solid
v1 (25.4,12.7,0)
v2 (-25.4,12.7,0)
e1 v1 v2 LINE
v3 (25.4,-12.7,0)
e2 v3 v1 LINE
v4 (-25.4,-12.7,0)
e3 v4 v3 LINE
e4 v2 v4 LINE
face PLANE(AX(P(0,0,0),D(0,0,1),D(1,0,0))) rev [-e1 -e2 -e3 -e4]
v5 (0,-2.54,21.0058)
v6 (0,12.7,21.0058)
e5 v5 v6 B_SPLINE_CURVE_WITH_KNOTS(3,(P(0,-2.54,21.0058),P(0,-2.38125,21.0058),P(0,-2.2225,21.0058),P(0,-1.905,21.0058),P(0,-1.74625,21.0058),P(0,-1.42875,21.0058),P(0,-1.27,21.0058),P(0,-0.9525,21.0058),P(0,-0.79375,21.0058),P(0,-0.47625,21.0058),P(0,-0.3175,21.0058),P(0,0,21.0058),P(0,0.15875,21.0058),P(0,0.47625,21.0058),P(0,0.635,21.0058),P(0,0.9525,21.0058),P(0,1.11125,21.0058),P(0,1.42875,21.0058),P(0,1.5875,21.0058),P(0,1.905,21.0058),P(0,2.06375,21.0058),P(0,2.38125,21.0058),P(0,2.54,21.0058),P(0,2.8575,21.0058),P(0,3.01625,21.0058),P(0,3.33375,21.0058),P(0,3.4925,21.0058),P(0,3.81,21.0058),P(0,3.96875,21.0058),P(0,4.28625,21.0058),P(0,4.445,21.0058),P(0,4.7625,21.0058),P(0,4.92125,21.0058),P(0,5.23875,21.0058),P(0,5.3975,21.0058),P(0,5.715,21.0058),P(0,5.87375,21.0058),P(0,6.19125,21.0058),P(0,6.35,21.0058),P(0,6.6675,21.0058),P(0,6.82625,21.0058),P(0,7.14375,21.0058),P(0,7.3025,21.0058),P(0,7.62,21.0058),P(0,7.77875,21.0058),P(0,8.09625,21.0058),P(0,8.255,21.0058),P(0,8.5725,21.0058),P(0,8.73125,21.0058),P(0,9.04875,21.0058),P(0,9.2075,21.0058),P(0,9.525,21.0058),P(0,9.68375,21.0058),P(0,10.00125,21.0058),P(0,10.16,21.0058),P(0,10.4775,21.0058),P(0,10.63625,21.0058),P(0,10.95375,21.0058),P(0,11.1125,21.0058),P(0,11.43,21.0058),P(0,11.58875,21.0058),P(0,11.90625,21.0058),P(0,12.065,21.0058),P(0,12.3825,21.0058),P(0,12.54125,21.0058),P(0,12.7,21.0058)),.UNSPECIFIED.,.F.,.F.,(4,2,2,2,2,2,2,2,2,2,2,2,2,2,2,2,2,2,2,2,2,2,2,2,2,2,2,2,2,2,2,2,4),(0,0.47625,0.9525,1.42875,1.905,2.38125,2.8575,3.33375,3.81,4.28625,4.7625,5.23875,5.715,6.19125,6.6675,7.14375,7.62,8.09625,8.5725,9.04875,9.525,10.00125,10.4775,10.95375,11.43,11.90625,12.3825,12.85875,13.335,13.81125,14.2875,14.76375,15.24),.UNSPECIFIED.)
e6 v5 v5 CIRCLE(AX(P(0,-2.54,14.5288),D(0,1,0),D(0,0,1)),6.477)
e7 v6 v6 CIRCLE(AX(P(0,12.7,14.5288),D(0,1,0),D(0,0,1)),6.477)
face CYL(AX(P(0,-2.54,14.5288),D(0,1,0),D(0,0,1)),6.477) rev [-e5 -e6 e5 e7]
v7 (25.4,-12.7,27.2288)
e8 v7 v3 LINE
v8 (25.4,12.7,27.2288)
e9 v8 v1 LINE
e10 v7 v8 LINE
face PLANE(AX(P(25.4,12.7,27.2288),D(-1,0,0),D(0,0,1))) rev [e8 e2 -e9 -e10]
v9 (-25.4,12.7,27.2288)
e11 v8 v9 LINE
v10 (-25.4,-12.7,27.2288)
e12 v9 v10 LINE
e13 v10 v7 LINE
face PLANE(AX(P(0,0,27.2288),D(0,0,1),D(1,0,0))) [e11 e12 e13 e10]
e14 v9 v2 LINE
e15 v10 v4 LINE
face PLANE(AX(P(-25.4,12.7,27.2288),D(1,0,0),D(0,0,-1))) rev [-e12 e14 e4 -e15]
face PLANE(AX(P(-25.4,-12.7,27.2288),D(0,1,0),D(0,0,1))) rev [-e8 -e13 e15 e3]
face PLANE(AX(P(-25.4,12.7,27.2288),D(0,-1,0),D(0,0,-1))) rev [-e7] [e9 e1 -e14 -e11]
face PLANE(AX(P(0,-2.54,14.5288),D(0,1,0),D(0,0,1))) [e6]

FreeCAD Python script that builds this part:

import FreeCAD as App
import Part
import Sketcher
Q = App.Units.Quantity

doc = App.newDocument("Part")
params = doc.addObject("Spreadsheet::Sheet", "Params")
for row, (alias, value) in enumerate([
    ("sketch1_width", "2 in"),
    ("sketch1_height", "1 in"),
    ("pad1_length", "1.072 in"),
    ("sketch2_diameter", "0.51 in"),
    ("pocket1_length", "0.6 in"),
], start=1):
    params.set(f"A{row}", alias)
    params.set(f"B{row}", "=" + value)
    params.setAlias(f"B{row}", alias)

body = doc.addObject("PartDesign::Body", "Body")

sketch1 = body.newObject("Sketcher::SketchObject", "Sketch")
sketch1.AttachmentSupport = (doc.getObject("XY_Plane"), [""])
sketch1.MapMode = "FlatFace"
sketch1.addGeometry(Part.LineSegment(App.Vector(-25.4, 12.7, 0), App.Vector(-25.4, -12.7, 0)), False)
sketch1.addGeometry(Part.LineSegment(App.Vector(-25.4, -12.7, 0), App.Vector(25.4, -12.7, 0)), False)
sketch1.addGeometry(Part.LineSegment(App.Vector(25.4, -12.7, 0), App.Vector(25.4, 12.7, 0)), False)
sketch1.addGeometry(Part.LineSegment(App.Vector(25.4, 12.7, 0), App.Vector(-25.4, 12.7, 0)), False)
sketch1.addConstraint(Sketcher.Constraint("Coincident", 0, 2, 1, 1))
sketch1.addConstraint(Sketcher.Constraint("Coincident", 1, 2, 2, 1))
sketch1.addConstraint(Sketcher.Constraint("Coincident", 2, 2, 3, 1))
sketch1.addConstraint(Sketcher.Constraint("Coincident", 3, 2, 0, 1))
sketch1.addConstraint(Sketcher.Constraint("Vertical", 0))
sketch1.addConstraint(Sketcher.Constraint("Horizontal", 1))
sketch1.addConstraint(Sketcher.Constraint("Vertical", 2))
sketch1.addConstraint(Sketcher.Constraint("Horizontal", 3))
sketch1.addConstraint(Sketcher.Constraint("Symmetric", 0, 2, 2, 2, -1, 1))
sketch1.addConstraint(Sketcher.Constraint("DistanceX", 1, 1, 1, 2, Q("2 in")))
sketch1.addConstraint(Sketcher.Constraint("DistanceY", 0, 2, 0, 1, Q("1 in")))
sketch1.setExpression("Constraints[9]", "Params.sketch1_width")
sketch1.setExpression("Constraints[10]", "Params.sketch1_height")
pad1 = body.newObject("PartDesign::Pad", "Pad")
pad1.Profile = sketch1
pad1.setExpression("Length", "Params.pad1_length")

sketch2 = body.newObject("Sketcher::SketchObject", "Sketch001")
sketch2.AttachmentSupport = (doc.getObject("XZ_Plane"), [""])
sketch2.MapMode = "FlatFace"
sketch2.AttachmentOffset = App.Placement(App.Vector(0, 0, -0.5 * 25.4), App.Rotation())
sketch2.addGeometry(Part.Circle(App.Vector(0, 14.5288, 0), App.Vector(0, 0, 1), 6.477), False)
sketch2.addConstraint(Sketcher.Constraint("PointOnObject", 0, 3, -2))
sketch2.addConstraint(Sketcher.Constraint("Diameter", 0, Q("0.51 in")))
sketch2.addConstraint(Sketcher.Constraint("DistanceY", -1, 1, 0, 3, Q("0.572 in")))
sketch2.setExpression("Constraints[1]", "Params.sketch2_diameter")
pocket1 = body.newObject("PartDesign::Pocket", "Pocket")
pocket1.Profile = sketch2
pocket1.setExpression("Length", "Params.pocket1_length")
pocket1.Reversed = True

doc.recompute()
